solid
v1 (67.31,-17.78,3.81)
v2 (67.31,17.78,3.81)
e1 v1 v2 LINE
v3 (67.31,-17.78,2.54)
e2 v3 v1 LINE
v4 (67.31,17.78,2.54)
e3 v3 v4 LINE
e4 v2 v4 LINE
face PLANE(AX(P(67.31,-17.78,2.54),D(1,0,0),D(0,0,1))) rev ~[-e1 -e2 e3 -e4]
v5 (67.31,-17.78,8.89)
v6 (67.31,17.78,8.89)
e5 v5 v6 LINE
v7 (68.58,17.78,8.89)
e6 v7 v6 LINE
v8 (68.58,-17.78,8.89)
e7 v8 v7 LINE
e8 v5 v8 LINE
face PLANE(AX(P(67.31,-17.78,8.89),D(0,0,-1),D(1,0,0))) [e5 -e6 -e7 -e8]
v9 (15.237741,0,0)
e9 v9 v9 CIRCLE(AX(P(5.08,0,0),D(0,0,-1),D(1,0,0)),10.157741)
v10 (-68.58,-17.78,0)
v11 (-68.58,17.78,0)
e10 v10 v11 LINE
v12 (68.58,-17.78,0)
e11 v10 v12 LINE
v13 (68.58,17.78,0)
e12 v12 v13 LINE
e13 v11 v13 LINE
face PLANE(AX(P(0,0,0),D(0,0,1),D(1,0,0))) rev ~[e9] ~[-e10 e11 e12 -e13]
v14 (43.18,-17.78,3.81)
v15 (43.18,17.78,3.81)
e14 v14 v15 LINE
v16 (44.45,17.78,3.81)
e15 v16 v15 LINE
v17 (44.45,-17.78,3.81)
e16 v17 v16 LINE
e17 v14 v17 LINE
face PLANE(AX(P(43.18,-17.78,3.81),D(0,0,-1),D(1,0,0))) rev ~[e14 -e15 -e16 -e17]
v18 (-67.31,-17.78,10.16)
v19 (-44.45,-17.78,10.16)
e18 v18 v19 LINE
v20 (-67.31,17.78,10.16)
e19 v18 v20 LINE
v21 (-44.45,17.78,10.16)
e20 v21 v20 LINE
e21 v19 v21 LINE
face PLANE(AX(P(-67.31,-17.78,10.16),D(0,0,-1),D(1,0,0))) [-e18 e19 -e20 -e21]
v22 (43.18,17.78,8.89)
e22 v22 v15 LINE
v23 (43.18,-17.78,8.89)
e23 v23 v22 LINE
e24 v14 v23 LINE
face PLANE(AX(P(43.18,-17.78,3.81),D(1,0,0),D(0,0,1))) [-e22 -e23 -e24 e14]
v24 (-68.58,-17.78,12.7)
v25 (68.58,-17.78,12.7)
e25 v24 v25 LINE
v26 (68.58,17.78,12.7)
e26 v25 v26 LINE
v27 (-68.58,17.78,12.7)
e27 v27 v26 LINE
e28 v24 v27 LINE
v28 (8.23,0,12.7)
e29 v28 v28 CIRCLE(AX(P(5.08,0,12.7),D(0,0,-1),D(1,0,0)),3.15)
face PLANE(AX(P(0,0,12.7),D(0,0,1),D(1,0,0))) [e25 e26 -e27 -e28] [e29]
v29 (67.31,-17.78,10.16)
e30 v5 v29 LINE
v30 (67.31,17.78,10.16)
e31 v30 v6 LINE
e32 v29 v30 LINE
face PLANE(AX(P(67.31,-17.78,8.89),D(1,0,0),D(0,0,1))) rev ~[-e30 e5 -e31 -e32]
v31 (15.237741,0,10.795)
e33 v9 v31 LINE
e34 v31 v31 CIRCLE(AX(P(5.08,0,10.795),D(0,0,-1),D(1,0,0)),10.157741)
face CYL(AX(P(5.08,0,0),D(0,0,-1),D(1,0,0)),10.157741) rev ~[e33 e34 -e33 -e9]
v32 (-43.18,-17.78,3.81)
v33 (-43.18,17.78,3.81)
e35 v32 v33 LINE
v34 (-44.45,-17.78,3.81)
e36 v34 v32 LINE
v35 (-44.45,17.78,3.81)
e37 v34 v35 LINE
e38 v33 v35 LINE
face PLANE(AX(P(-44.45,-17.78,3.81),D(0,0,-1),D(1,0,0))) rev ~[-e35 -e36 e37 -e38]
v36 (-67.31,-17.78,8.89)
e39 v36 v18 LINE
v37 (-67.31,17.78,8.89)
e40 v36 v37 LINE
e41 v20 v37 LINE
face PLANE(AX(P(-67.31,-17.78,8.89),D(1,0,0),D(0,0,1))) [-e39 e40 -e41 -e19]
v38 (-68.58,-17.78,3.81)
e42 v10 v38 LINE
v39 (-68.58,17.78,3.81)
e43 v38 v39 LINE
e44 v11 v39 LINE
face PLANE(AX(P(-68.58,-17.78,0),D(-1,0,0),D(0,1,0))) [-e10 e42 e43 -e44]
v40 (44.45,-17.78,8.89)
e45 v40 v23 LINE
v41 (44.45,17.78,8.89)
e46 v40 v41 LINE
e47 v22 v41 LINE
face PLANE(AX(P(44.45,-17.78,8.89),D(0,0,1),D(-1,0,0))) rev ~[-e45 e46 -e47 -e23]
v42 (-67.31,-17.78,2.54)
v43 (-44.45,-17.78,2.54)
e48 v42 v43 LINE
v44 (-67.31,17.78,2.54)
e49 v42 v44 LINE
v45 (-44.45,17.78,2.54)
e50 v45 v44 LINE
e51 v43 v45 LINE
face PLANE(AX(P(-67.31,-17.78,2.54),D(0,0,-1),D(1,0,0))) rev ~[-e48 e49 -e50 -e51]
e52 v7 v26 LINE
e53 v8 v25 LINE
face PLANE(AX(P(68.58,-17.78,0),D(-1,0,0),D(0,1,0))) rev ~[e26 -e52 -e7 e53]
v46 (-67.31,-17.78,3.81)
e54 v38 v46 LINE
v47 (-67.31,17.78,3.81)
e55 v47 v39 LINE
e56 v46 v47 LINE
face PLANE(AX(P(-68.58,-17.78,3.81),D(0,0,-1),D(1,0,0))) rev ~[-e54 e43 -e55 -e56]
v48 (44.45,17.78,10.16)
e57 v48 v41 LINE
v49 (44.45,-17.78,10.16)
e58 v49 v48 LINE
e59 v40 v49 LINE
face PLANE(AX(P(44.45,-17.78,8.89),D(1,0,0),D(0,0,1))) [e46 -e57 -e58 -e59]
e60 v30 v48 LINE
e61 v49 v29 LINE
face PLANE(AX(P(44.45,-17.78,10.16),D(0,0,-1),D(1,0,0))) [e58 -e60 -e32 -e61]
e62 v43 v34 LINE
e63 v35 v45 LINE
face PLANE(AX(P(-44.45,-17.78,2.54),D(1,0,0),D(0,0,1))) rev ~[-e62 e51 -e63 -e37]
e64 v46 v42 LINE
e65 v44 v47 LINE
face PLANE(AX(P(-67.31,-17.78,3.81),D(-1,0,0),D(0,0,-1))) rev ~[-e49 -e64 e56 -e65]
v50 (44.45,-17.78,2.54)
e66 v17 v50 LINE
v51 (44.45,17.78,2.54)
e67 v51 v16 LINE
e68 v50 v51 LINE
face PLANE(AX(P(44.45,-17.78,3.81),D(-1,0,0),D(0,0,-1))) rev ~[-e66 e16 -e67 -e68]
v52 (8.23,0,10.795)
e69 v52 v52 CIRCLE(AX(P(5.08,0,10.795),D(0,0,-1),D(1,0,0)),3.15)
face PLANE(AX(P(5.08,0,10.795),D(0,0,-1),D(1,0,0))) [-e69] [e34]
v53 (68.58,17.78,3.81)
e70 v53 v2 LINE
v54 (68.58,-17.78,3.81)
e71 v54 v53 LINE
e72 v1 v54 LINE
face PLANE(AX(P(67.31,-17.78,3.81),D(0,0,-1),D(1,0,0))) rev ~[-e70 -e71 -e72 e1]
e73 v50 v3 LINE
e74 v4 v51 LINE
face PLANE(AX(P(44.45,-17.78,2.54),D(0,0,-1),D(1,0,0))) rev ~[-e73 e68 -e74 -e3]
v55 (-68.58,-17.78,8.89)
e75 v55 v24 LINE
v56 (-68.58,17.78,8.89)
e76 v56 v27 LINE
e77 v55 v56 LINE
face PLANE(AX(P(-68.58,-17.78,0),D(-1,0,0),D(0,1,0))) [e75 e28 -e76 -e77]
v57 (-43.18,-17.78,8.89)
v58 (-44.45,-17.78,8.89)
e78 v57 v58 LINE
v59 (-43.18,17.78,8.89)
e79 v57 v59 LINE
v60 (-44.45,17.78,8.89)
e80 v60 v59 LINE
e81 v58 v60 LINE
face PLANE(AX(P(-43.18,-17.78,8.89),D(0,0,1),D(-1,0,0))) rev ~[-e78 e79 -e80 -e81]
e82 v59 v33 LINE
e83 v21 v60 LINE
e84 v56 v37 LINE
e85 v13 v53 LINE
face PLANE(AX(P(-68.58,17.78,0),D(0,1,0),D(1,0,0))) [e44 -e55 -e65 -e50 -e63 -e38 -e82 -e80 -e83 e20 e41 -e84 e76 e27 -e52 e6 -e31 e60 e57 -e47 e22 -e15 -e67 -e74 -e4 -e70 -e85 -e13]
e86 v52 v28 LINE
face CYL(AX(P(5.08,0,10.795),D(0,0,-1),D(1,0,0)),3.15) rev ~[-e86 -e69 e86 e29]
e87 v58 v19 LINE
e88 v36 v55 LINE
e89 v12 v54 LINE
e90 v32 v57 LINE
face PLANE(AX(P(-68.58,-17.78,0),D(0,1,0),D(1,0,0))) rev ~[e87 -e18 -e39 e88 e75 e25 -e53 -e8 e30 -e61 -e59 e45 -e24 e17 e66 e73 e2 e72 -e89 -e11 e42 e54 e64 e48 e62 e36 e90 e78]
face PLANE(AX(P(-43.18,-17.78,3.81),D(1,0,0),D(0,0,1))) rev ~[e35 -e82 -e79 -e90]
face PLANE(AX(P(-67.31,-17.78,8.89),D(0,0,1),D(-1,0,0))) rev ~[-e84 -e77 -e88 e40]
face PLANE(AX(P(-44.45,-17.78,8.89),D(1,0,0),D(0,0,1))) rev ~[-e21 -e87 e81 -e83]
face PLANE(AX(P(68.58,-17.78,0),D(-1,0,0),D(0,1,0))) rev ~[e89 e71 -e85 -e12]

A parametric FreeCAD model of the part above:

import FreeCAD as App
import Part
import Sketcher
Q = App.Units.Quantity


def add_polygon(sketch, points):
    """Adds a closed chain of lines whose ends are joined by coincident constraints."""
    first, n = sketch.GeometryCount, len(points)
    for a, b in zip(points, points[1:] + points[:1]):
        sketch.addGeometry(Part.LineSegment(App.Vector(*a, 0), App.Vector(*b, 0)), False)
    for i in range(n):
        sketch.addConstraint(Sketcher.Constraint("Coincident", first + i, 2, first + (i + 1) % n, 1))

doc = App.newDocument("Part")
body = doc.addObject("PartDesign::Body", "Body")

# Sketch on XY plane
sketch1 = doc.addObject("Sketcher::SketchObject", "Sketch")
body.addObject(sketch1)
sketch1.AttachmentSupport = (doc.XY_Plane, [""])
sketch1.MapMode = "FlatFace"
add_polygon(sketch1, [(-69, 18), (-69, -18), (69, -18), (69, 18)])  # lines 0-3
sketch1.addConstraint(Sketcher.Constraint("Vertical", 0))
sketch1.addConstraint(Sketcher.Constraint("Horizontal", 1))
sketch1.addConstraint(Sketcher.Constraint("Vertical", 2))
sketch1.addConstraint(Sketcher.Constraint("Horizontal", 3))
sketch1.addConstraint(Sketcher.Constraint("Symmetric", 0, 2, 2, 2, -1, 1))
sketch1.addConstraint(Sketcher.Constraint("DistanceX", 1, 1, 1, 2, Q("5.4 in")))
sketch1.addConstraint(Sketcher.Constraint("DistanceY", 0, 2, 0, 1, Q("1.4 in")))
pad1 = doc.addObject("PartDesign::Pad", "Pad")
body.addObject(pad1)
pad1.Profile = sketch1
pad1.Length = Q("0.5 in")

# Sketch on XY plane
sketch2 = doc.addObject("Sketcher::SketchObject", "Sketch001")
body.addObject(sketch2)
sketch2.AttachmentSupport = (doc.XY_Plane, [""])
sketch2.MapMode = "FlatFace"
sketch2.addGeometry(Part.Circle(App.Vector(5, 0, 0), App.Vector(0, 0, 1), 10), False)
sketch2.addConstraint(Sketcher.Constraint("PointOnObject", 0, 3, -1))
sketch2.addConstraint(Sketcher.Constraint("DistanceX", -1, 1, 0, 3, Q("0.2 in")))
sketch2.addConstraint(Sketcher.Constraint("Diameter", 0, 20.315482))
pocket1 = doc.addObject("PartDesign::Pocket", "Pocket")
body.addObject(pocket1)
pocket1.Profile = sketch2
pocket1.Length = Q("0.425 in")
pocket1.Reversed = True

# Sketch on XY plane
sketch3 = doc.addObject("Sketcher::SketchObject", "Sketch002")
body.addObject(sketch3)
sketch3.AttachmentSupport = (doc.XY_Plane, [""])
sketch3.MapMode = "FlatFace"
sketch3.AttachmentOffset = App.Placement(App.Vector(0, 0, 0.425 * 25.4), App.Rotation())
sketch3.addGeometry(Part.Circle(App.Vector(5.1, 0, 0), App.Vector(0, 0, 1), 3.1), False)
sketch3.addConstraint(Sketcher.Constraint("PointOnObject", 0, 3, -1))
sketch3.addConstraint(Sketcher.Constraint("DistanceX", -1, 1, 0, 3, Q("0.2 in")))
sketch3.addConstraint(Sketcher.Constraint("Diameter", 0, 6.3))
pocket2 = doc.addObject("PartDesign::Pocket", "Pocket001")
body.addObject(pocket2)
pocket2.Profile = sketch3
pocket2.Length = Q("0.075 in")
pocket2.Reversed = True

# Sketch on XZ plane
sketch4 = doc.addObject("Sketcher::SketchObject", "Sketch003")
body.addObject(sketch4)
sketch4.AttachmentSupport = (doc.XZ_Plane, [""])
sketch4.MapMode = "FlatFace"
sketch4.AttachmentOffset = App.Placement(App.Vector(0, 0, 0.7 * 25.4), App.Rotation())
add_polygon(sketch4, [(44.5, 2.5), (67.3, 2.5), (67.3, 3.8), (68.6, 3.8), (68.6, 8.9), (67.3, 8.9), (67.3, 10.2), (44.5, 10.2), (44.5, 8.9), (43.2, 8.9), (43.2, 3.8), (44.5, 3.8)])  # lines 0-11
add_polygon(sketch4, [(-67.3, 2.5), (-44.5, 2.5), (-44.5, 3.8), (-43.2, 3.8), (-43.2, 8.9), (-44.5, 8.9), (-44.5, 10.2), (-67.3, 10.2), (-67.3, 8.9), (-68.6, 8.9), (-68.6, 3.8), (-67.3, 3.8)])  # lines 12-23
sketch4.addConstraint(Sketcher.Constraint("Horizontal", 0))
sketch4.addConstraint(Sketcher.Constraint("Vertical", 1))
sketch4.addConstraint(Sketcher.Constraint("Horizontal", 2))
sketch4.addConstraint(Sketcher.Constraint("Vertical", 3))
sketch4.addConstraint(Sketcher.Constraint("Horizontal", 4))
sketch4.addConstraint(Sketcher.Constraint("Vertical", 5))
sketch4.addConstraint(Sketcher.Constraint("Horizontal", 6))
sketch4.addConstraint(Sketcher.Constraint("Vertical", 7))
sketch4.addConstraint(Sketcher.Constraint("Horizontal", 8))
sketch4.addConstraint(Sketcher.Constraint("Vertical", 9))
sketch4.addConstraint(Sketcher.Constraint("Horizontal", 10))
sketch4.addConstraint(Sketcher.Constraint("Vertical", 11))
sketch4.addConstraint(Sketcher.Constraint("Horizontal", 12))
sketch4.addConstraint(Sketcher.Constraint("Vertical", 13))
sketch4.addConstraint(Sketcher.Constraint("Horizontal", 14))
sketch4.addConstraint(Sketcher.Constraint("Vertical", 15))
sketch4.addConstraint(Sketcher.Constraint("Horizontal", 16))
sketch4.addConstraint(Sketcher.Constraint("Vertical", 17))
sketch4.addConstraint(Sketcher.Constraint("Horizontal", 18))
sketch4.addConstraint(Sketcher.Constraint("Vertical", 19))
sketch4.addConstraint(Sketcher.Constraint("Horizontal", 20))
sketch4.addConstraint(Sketcher.Constraint("Vertical", 21))
sketch4.addConstraint(Sketcher.Constraint("Horizontal", 22))
sketch4.addConstraint(Sketcher.Constraint("Vertical", 23))
sketch4.addConstraint(Sketcher.Constraint("Symmetric", 11, 2, 12, 2, -2))
sketch4.addConstraint(Sketcher.Constraint("Symmetric", 9, 2, 14, 2, -2))
sketch4.addConstraint(Sketcher.Constraint("Symmetric", 7, 2, 16, 2, -2))
sketch4.addConstraint(Sketcher.Constraint("Symmetric", 5, 2, 18, 2, -2))
sketch4.addConstraint(Sketcher.Constraint("Symmetric", 3, 2, 20, 2, -2))
sketch4.addConstraint(Sketcher.Constraint("Symmetric", 1, 2, 22, 2, -2))
sketch4.addConstraint(Sketcher.Constraint("Horizontal", 4, 2, 7, 2))
sketch4.addConstraint(Sketcher.Constraint("Horizontal", 2, 2, 9, 2))
sketch4.addConstraint(Sketcher.Constraint("Vertical", 1, 2, 4, 2))
sketch4.addConstraint(Sketcher.Constraint("Vertical", 7, 2, 10, 2))
sketch4.addConstraint(Sketcher.Constraint("Equal", 4, 8))
sketch4.addConstraint(Sketcher.Constraint("Equal", 22, 1))
sketch4.addConstraint(Sketcher.Constraint("Equal", 1, 5))
sketch4.addConstraint(Sketcher.Constraint("DistanceX", 0, 1, 0, 2, Q("0.9 in")))
sketch4.addConstraint(Sketcher.Constraint("DistanceY", 3, 1, 3, 2, Q("0.2 in")))
sketch4.addConstraint(Sketcher.Constraint("DistanceX", 2, 1, 2, 2, Q("0.05 in")))
sketch4.addConstraint(Sketcher.Constraint("DistanceY", -1, 1, 0, 2, Q("0.1 in")))
sketch4.addConstraint(Sketcher.Constraint("DistanceX", -1, 1, 2, 2, Q("2.7 in")))
pocket3 = doc.addObject("PartDesign::Pocket", "Pocket002")
body.addObject(pocket3)
pocket3.Profile = sketch4
pocket3.Length = Q("2 in")

doc.recompute()
